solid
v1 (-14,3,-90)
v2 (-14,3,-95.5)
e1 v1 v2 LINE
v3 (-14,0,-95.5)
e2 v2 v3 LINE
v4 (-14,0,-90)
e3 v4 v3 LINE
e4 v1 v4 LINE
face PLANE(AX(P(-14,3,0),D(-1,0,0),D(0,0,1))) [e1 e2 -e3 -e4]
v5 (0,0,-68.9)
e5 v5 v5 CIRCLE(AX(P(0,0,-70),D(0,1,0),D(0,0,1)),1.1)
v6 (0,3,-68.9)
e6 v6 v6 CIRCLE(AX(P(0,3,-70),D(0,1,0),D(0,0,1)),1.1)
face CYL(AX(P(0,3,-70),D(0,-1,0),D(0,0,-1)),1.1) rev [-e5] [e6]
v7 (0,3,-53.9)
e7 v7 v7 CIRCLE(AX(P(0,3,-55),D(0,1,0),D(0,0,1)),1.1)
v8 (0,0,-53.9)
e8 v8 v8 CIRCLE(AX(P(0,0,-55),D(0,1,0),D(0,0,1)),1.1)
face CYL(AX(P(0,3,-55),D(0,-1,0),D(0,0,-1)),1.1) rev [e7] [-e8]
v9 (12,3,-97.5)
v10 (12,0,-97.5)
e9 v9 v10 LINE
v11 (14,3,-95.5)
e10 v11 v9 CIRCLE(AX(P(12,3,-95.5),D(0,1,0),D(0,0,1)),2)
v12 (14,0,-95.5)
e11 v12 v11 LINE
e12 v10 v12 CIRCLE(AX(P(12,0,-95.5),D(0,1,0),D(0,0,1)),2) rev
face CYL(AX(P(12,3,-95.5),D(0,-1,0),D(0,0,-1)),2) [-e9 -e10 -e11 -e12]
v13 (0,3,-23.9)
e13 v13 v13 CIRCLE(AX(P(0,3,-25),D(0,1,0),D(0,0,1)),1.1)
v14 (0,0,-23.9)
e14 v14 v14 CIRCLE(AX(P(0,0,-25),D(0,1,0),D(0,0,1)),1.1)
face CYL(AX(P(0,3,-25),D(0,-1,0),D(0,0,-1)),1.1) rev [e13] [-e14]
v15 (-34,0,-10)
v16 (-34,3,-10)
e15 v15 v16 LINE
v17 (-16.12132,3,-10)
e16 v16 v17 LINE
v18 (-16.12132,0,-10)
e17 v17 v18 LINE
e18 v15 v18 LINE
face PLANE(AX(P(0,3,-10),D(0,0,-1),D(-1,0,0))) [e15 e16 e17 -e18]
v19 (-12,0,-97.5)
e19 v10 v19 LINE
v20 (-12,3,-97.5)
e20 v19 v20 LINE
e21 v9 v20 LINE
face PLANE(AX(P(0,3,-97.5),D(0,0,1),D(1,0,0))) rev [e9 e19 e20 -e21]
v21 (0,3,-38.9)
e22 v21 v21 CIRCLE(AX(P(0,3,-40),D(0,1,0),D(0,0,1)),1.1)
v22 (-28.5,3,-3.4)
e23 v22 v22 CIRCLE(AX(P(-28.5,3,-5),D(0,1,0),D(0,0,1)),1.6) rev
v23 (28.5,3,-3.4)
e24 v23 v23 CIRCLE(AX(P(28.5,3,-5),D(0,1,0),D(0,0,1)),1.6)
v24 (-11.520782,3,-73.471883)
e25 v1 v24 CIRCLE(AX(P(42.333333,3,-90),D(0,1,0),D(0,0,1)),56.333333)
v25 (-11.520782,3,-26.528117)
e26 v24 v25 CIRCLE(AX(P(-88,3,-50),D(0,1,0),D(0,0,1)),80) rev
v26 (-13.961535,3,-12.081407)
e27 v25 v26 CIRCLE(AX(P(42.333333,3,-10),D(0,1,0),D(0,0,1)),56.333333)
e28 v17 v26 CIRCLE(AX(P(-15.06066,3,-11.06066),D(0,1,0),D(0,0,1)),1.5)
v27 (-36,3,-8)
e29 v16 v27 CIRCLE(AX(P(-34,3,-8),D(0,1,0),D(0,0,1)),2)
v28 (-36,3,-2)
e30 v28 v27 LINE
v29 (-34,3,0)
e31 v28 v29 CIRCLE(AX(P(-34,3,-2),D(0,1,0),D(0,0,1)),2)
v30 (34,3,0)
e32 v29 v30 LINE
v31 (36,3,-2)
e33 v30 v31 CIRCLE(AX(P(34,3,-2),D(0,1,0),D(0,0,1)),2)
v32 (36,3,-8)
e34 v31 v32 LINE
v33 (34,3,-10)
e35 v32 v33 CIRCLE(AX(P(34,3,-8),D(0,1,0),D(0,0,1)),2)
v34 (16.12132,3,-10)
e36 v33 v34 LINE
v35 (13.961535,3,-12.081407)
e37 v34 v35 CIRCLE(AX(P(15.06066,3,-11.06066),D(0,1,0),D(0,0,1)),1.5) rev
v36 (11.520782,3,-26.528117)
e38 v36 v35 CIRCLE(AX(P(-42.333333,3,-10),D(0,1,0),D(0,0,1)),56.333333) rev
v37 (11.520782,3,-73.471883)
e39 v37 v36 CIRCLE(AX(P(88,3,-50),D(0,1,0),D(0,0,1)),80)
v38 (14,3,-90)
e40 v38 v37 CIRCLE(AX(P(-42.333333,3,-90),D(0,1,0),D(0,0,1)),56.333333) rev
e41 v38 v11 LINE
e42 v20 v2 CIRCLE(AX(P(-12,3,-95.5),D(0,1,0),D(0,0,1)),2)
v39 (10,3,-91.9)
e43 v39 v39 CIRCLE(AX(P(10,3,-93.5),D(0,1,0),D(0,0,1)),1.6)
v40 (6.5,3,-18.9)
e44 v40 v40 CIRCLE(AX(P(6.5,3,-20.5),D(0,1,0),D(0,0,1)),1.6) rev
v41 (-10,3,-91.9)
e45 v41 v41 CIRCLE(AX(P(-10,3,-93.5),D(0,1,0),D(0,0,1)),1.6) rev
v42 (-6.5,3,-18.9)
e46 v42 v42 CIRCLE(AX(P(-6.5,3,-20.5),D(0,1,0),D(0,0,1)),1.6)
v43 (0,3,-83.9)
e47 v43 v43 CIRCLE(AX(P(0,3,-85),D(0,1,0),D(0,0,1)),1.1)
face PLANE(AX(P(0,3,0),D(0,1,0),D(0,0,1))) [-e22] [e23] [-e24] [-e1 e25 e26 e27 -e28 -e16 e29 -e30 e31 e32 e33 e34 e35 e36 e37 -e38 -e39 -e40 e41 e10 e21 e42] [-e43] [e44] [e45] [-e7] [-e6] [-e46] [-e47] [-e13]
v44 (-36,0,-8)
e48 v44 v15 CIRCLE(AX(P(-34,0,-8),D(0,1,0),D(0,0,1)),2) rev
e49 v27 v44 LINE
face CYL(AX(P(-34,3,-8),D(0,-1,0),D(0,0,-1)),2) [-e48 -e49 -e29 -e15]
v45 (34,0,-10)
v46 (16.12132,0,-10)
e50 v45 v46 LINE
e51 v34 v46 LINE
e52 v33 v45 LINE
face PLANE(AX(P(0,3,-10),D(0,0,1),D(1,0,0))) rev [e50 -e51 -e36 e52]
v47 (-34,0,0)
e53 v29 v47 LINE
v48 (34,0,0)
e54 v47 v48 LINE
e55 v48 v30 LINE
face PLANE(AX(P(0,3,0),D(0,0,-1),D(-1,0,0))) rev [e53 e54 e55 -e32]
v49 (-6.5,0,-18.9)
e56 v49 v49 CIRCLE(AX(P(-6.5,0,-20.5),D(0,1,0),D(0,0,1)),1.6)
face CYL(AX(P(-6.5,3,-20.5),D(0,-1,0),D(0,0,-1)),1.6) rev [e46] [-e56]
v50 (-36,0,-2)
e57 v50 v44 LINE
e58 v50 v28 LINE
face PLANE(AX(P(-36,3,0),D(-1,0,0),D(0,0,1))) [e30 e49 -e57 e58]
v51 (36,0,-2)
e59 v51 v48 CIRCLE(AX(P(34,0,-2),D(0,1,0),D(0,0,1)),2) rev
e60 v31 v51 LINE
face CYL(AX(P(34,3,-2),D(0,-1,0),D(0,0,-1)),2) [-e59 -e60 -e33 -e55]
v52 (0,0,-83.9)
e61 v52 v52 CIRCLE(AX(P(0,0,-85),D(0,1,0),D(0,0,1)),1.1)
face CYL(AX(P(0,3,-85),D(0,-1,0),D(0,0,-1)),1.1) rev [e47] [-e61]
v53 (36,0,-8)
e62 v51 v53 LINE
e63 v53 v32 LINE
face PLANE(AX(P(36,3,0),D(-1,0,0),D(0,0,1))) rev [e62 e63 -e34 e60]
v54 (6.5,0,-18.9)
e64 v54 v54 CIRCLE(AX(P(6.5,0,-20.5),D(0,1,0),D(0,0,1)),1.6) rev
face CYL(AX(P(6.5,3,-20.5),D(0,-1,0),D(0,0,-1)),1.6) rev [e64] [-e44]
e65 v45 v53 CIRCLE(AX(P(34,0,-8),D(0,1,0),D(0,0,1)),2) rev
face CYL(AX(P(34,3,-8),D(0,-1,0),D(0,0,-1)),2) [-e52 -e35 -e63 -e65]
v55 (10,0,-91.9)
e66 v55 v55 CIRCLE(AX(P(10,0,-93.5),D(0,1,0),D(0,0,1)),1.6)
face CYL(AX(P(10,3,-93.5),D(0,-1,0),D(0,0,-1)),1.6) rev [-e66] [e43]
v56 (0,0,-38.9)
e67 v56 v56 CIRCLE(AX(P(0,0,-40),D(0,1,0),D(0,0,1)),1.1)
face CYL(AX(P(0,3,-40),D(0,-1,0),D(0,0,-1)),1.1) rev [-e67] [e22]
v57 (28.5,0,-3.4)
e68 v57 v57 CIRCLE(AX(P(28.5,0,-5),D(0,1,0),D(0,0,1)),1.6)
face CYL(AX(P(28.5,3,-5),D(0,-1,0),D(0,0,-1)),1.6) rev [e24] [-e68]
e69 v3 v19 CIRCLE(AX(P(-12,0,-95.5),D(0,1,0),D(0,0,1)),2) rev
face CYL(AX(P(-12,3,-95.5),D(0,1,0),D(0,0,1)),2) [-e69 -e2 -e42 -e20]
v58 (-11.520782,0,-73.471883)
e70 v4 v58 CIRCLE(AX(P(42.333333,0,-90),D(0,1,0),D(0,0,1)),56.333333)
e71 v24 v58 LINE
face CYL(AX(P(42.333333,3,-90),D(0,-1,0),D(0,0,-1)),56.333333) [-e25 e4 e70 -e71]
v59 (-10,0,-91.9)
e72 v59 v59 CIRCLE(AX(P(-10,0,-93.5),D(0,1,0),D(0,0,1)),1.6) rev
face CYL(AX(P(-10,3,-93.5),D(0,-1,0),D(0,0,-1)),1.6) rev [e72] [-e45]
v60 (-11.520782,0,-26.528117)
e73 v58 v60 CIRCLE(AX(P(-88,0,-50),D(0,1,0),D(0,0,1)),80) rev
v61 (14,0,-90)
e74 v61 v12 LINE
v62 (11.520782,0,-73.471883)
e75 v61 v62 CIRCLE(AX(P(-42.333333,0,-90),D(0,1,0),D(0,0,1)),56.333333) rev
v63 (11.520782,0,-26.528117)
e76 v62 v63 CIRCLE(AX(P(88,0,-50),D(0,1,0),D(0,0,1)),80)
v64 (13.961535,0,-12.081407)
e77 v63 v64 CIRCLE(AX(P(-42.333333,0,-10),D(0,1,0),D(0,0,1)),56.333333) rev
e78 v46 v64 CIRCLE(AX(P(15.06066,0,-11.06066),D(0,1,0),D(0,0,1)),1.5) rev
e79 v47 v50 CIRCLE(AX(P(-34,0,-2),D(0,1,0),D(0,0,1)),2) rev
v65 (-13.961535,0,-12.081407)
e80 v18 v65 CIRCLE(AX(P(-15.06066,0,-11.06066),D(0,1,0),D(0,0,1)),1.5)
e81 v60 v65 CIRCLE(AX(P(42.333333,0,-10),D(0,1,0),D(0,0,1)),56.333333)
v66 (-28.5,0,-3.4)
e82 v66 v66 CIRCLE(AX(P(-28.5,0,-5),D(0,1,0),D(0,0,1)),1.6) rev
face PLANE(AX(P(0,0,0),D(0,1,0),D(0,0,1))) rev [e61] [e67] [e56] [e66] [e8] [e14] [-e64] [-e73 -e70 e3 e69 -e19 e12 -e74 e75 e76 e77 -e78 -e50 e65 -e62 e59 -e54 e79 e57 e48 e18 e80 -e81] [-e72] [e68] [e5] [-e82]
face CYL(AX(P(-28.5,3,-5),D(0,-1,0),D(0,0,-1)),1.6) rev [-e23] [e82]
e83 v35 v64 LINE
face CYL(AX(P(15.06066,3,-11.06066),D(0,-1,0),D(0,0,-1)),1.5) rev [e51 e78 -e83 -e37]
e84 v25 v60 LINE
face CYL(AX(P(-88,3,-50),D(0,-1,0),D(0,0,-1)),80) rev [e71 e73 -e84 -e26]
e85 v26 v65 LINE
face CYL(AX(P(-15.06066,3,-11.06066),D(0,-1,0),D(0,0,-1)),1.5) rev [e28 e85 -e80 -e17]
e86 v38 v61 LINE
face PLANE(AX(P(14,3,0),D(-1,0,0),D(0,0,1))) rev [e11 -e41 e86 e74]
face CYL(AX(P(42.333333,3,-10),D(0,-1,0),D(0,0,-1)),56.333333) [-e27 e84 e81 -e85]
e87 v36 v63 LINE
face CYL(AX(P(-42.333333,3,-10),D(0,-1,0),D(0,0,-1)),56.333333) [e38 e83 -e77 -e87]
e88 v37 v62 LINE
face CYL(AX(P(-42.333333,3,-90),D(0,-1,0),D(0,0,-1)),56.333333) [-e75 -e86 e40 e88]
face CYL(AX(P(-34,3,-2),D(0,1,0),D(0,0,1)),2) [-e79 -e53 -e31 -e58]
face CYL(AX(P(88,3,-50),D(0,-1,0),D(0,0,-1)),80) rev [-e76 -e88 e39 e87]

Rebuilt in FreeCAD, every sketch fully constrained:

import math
import FreeCAD as App
import Part
import Sketcher

V = App.Vector


def edges_at(feature, points):
    """Names of the edges that pass closest to the given points."""
    edges = feature.Shape.Edges
    near = lambda p: min(range(len(edges)), key=lambda i: edges[i].distToShape(Part.Vertex(*p))[0])
    return sorted({f"Edge{near(p) + 1}" for p in points})

doc = App.newDocument("Part")
body = doc.addObject("PartDesign::Body", "Body")

# Sketch on XZ plane
sketch1 = body.newObject("Sketcher::SketchObject", "Sketch")
sketch1.AttachmentSupport = (doc.getObject("XZ_Plane"), [""])
sketch1.MapMode = "FlatFace"
sketch1.addGeometry(Part.LineSegment(V(-36, -10, 0), V(-36, 0, 0)), False)
sketch1.addGeometry(Part.LineSegment(V(-36, 0, 0), V(36, 0, 0)), False)
sketch1.addGeometry(Part.LineSegment(V(36, 0, 0), V(36, -10, 0)), False)
sketch1.addGeometry(Part.LineSegment(V(36, -10, 0), V(16.1, -10, 0)), False)
sketch1.addGeometry(Part.ArcOfCircle(Part.Circle(V(15.1, -11.1, 0), V(0, 0, 1), 1.5), math.radians(45), math.radians(135)), False)
sketch1.addGeometry(Part.ArcOfCircle(Part.Circle(V(15.1, -11.1, 0), V(0, 0, 1), 1.5), math.radians(135), math.radians(223)), False)
sketch1.addGeometry(Part.ArcOfCircle(Part.Circle(V(-42.3, -10, 0), V(0, 0, 1), 56.3), math.radians(-17.06), math.radians(-2.12)), False)
sketch1.addGeometry(Part.ArcOfCircle(Part.Circle(V(88, -50, 0), V(0, 0, 1), 80), math.radians(163), math.radians(197)), False)
sketch1.addGeometry(Part.ArcOfCircle(Part.Circle(V(-42.3, -90, 0), V(0, 0, 1), 56.3), math.radians(0), math.radians(17.06)), False)
sketch1.addGeometry(Part.LineSegment(V(14, -90, 0), V(14, -97.5, 0)), False)
sketch1.addGeometry(Part.LineSegment(V(14, -97.5, 0), V(-14, -97.5, 0)), False)
sketch1.addGeometry(Part.LineSegment(V(-14, -97.5, 0), V(-14, -90, 0)), False)
sketch1.addGeometry(Part.ArcOfCircle(Part.Circle(V(42.3, -90, 0), V(0, 0, 1), 56.3), math.radians(162.94), math.radians(180)), False)
sketch1.addGeometry(Part.ArcOfCircle(Part.Circle(V(-88, -50, 0), V(0, 0, 1), 80), math.radians(-17), math.radians(17)), False)
sketch1.addGeometry(Part.ArcOfCircle(Part.Circle(V(42.3, -10, 0), V(0, 0, 1), 56.3), math.radians(-177.88), math.radians(-162.94)), False)
sketch1.addGeometry(Part.ArcOfCircle(Part.Circle(V(-15.1, -11.1, 0), V(0, 0, 1), 1.5), math.radians(-43), math.radians(0)), False)
sketch1.addGeometry(Part.ArcOfCircle(Part.Circle(V(-15.1, -11.1, 0), V(0, 0, 1), 1.5), math.radians(0), math.radians(45)), False)
sketch1.addGeometry(Part.ArcOfCircle(Part.Circle(V(-15.1, -11.1, 0), V(0, 0, 1), 1.5), math.radians(45), math.radians(135)), False)
sketch1.addGeometry(Part.LineSegment(V(-16.1, -10, 0), V(-36, -10, 0)), False)
sketch1.addGeometry(Part.Circle(V(-28.5, -5, 0), V(0, 0, 1), 1.6), False)
sketch1.addGeometry(Part.Circle(V(-6.5, -20.5, 0), V(0, 0, 1), 1.6), False)
sketch1.addGeometry(Part.Circle(V(0, -25, 0), V(0, 0, 1), 1.1), False)
sketch1.addGeometry(Part.Circle(V(0, -40, 0), V(0, 0, 1), 1.1), False)
sketch1.addGeometry(Part.Circle(V(6.5, -20.5, 0), V(0, 0, 1), 1.6), False)
sketch1.addGeometry(Part.Circle(V(28.5, -5, 0), V(0, 0, 1), 1.6), False)
sketch1.addGeometry(Part.Circle(V(0, -55, 0), V(0, 0, 1), 1.1), False)
sketch1.addGeometry(Part.Circle(V(0, -70, 0), V(0, 0, 1), 1.1), False)
sketch1.addGeometry(Part.Circle(V(-10, -93.5, 0), V(0, 0, 1), 1.6), False)
sketch1.addGeometry(Part.Circle(V(0, -85, 0), V(0, 0, 1), 1.1), False)
sketch1.addGeometry(Part.Circle(V(10, -93.5, 0), V(0, 0, 1), 1.6), False)
sketch1.addConstraint(Sketcher.Constraint("Coincident", 0, 2, 1, 1))
sketch1.addConstraint(Sketcher.Constraint("Coincident", 1, 2, 2, 1))
sketch1.addConstraint(Sketcher.Constraint("Coincident", 2, 2, 3, 1))
sketch1.addConstraint(Sketcher.Constraint("Coincident", 3, 2, 4, 1))
sketch1.addConstraint(Sketcher.Constraint("Tangent", 4, 2, 5, 1))
sketch1.addConstraint(Sketcher.Constraint("Coincident", 5, 2, 6, 2))
sketch1.addConstraint(Sketcher.Constraint("Tangent", 6, 1, 7, 1))
sketch1.addConstraint(Sketcher.Constraint("Tangent", 7, 2, 8, 2))
sketch1.addConstraint(Sketcher.Constraint("Tangent", 8, 1, 9, 1))
sketch1.addConstraint(Sketcher.Constraint("Coincident", 9, 2, 10, 1))
sketch1.addConstraint(Sketcher.Constraint("Coincident", 10, 2, 11, 1))
sketch1.addConstraint(Sketcher.Constraint("Tangent", 11, 2, 12, 2))
sketch1.addConstraint(Sketcher.Constraint("Tangent", 12, 1, 13, 1))
sketch1.addConstraint(Sketcher.Constraint("Tangent", 13, 2, 14, 2))
sketch1.addConstraint(Sketcher.Constraint("Coincident", 14, 1, 15, 1))
sketch1.addConstraint(Sketcher.Constraint("Tangent", 15, 2, 16, 1))
sketch1.addConstraint(Sketcher.Constraint("Tangent", 16, 2, 17, 1))
sketch1.addConstraint(Sketcher.Constraint("Coincident", 17, 2, 18, 1))
sketch1.addConstraint(Sketcher.Constraint("Coincident", 18, 2, 0, 1))
sketch1.addConstraint(Sketcher.Constraint("Vertical", 0))
sketch1.addConstraint(Sketcher.Constraint("Horizontal", 1))
sketch1.addConstraint(Sketcher.Constraint("Vertical", 2))
sketch1.addConstraint(Sketcher.Constraint("Horizontal", 3))
sketch1.addConstraint(Sketcher.Constraint("Vertical", 9))
sketch1.addConstraint(Sketcher.Constraint("Horizontal", 10))
sketch1.addConstraint(Sketcher.Constraint("Vertical", 11))
sketch1.addConstraint(Sketcher.Constraint("Horizontal", 18))
sketch1.addConstraint(Sketcher.Constraint("Coincident", 17, 3, 15, 3))
sketch1.addConstraint(Sketcher.Constraint("Equal", 4, 5))
sketch1.addConstraint(Sketcher.Constraint("Equal", 6, 8))
sketch1.addConstraint(Sketcher.Constraint("Equal", 8, 12))
sketch1.addConstraint(Sketcher.Constraint("Equal", 7, 13))
sketch1.addConstraint(Sketcher.Constraint("Equal", 12, 14))
sketch1.addConstraint(Sketcher.Constraint("Equal", 5, 15))
sketch1.addConstraint(Sketcher.Constraint("Equal", 19, 20))
sketch1.addConstraint(Sketcher.Constraint("Equal", 21, 22))
sketch1.addConstraint(Sketcher.Constraint("Equal", 20, 23))
sketch1.addConstraint(Sketcher.Constraint("Equal", 23, 24))
sketch1.addConstraint(Sketcher.Constraint("Equal", 22, 25))
sketch1.addConstraint(Sketcher.Constraint("Equal", 25, 26))
sketch1.addConstraint(Sketcher.Constraint("Equal", 24, 27))
sketch1.addConstraint(Sketcher.Constraint("Equal", 26, 28))
sketch1.addConstraint(Sketcher.Constraint("Equal", 27, 29))
sketch1.addConstraint(Sketcher.Constraint("Symmetric", 0, 2, 1, 2, -1, 1))
sketch1.addConstraint(Sketcher.Constraint("Symmetric", 8, 3, 12, 3, -2))
sketch1.addConstraint(Sketcher.Constraint("Symmetric", 6, 3, 14, 3, -2))
sketch1.addConstraint(Sketcher.Constraint("Symmetric", 4, 3, 15, 3, -2))
sketch1.addConstraint(Sketcher.Constraint("Symmetric", 20, 3, 23, 3, -2))
sketch1.addConstraint(Sketcher.Constraint("Symmetric", 19, 3, 24, 3, -2))
sketch1.addConstraint(Sketcher.Constraint("Symmetric", 27, 3, 29, 3, -2))
sketch1.addConstraint(Sketcher.Constraint("PointOnObject", 21, 3, -2))
sketch1.addConstraint(Sketcher.Constraint("PointOnObject", 22, 3, -2))
sketch1.addConstraint(Sketcher.Constraint("PointOnObject", 25, 3, -2))
sketch1.addConstraint(Sketcher.Constraint("PointOnObject", 26, 3, -2))
sketch1.addConstraint(Sketcher.Constraint("PointOnObject", 28, 3, -2))
sketch1.addConstraint(Sketcher.Constraint("Horizontal", 14, 3, 2, 2))
sketch1.addConstraint(Sketcher.Constraint("Horizontal", 3, 2, 4, 2))
sketch1.addConstraint(Sketcher.Constraint("Horizontal", 17, 3, 15, 2))
sketch1.addConstraint(Sketcher.Constraint("Horizontal", 4, 2, 16, 2))
sketch1.addConstraint(Sketcher.Constraint("Horizontal", 16, 2, 17, 2))
sketch1.addConstraint(Sketcher.Constraint("Vertical", 6, 3, 8, 3))
sketch1.addConstraint(Sketcher.Constraint("Vertical", 4, 2, 8, 1))
sketch1.addConstraint(Sketcher.Constraint("Radius", 7, 80.0))
sketch1.addConstraint(Sketcher.Constraint("Diameter", 19, 3.2))
sketch1.addConstraint(Sketcher.Constraint("Diameter", 21, 2.2))
sketch1.addConstraint(Sketcher.Constraint("Radius", 4, 1.5))
sketch1.addConstraint(Sketcher.Constraint("DistanceX", 1, 1, 1, 2, 72.0))
sketch1.addConstraint(Sketcher.Constraint("DistanceX", 10, 2, 10, 1, 28.0))
sketch1.addConstraint(Sketcher.Constraint("DistanceY", 0, 1, 0, 2, 10.0))
sketch1.addConstraint(Sketcher.Constraint("DistanceY", 9, 2, 9, 1, 7.5))
sketch1.addConstraint(Sketcher.Constraint("DistanceX", -1, 1, 7, 3, 88.0))
sketch1.addConstraint(Sketcher.Constraint("DistanceY", 7, 3, -1, 1, 50.0))
sketch1.addConstraint(Sketcher.Constraint("DistanceY", 19, 3, -1, 1, 5.0))
sketch1.addConstraint(Sketcher.Constraint("DistanceY", 21, 3, -1, 1, 25.0))
sketch1.addConstraint(Sketcher.Constraint("DistanceY", 22, 3, -1, 1, 40.0))
sketch1.addConstraint(Sketcher.Constraint("DistanceY", 25, 3, -1, 1, 55.0))
sketch1.addConstraint(Sketcher.Constraint("DistanceY", 26, 3, -1, 1, 70.0))
sketch1.addConstraint(Sketcher.Constraint("DistanceX", 27, 3, -1, 1, 10.0))
sketch1.addConstraint(Sketcher.Constraint("DistanceY", 28, 3, -1, 1, 85.0))
sketch1.addConstraint(Sketcher.Constraint("DistanceX", 20, 3, 23, 3, 13.0))
sketch1.addConstraint(Sketcher.Constraint("DistanceX", 23, 3, 24, 3, 22.0))
sketch1.addConstraint(Sketcher.Constraint("DistanceY", 9, 2, 29, 3, 4.0))
sketch1.addConstraint(Sketcher.Constraint("DistanceY", 20, 3, -1, 1, 20.5))
sketch1.addConstraint(Sketcher.Constraint("DistanceX", 3, 2, 3, 1, 19.87868))
pad1 = body.newObject("PartDesign::Pad", "Pad")
pad1.Profile = sketch1
pad1.Length = 3
pad1.Reversed = True
doc.recompute()

fillet = body.newObject("PartDesign::Fillet", "Fillet")
fillet.Base = (pad1, edges_at(pad1, [
    (36, 1.5, -10),
    (36, 1.5, 0),
    (-36, 1.5, 0),
    (-36, 1.5, -10),
    (-14, 1.5, -97.5),
    (14, 1.5, -97.5),
]))
fillet.Radius = 2

doc.recompute()
